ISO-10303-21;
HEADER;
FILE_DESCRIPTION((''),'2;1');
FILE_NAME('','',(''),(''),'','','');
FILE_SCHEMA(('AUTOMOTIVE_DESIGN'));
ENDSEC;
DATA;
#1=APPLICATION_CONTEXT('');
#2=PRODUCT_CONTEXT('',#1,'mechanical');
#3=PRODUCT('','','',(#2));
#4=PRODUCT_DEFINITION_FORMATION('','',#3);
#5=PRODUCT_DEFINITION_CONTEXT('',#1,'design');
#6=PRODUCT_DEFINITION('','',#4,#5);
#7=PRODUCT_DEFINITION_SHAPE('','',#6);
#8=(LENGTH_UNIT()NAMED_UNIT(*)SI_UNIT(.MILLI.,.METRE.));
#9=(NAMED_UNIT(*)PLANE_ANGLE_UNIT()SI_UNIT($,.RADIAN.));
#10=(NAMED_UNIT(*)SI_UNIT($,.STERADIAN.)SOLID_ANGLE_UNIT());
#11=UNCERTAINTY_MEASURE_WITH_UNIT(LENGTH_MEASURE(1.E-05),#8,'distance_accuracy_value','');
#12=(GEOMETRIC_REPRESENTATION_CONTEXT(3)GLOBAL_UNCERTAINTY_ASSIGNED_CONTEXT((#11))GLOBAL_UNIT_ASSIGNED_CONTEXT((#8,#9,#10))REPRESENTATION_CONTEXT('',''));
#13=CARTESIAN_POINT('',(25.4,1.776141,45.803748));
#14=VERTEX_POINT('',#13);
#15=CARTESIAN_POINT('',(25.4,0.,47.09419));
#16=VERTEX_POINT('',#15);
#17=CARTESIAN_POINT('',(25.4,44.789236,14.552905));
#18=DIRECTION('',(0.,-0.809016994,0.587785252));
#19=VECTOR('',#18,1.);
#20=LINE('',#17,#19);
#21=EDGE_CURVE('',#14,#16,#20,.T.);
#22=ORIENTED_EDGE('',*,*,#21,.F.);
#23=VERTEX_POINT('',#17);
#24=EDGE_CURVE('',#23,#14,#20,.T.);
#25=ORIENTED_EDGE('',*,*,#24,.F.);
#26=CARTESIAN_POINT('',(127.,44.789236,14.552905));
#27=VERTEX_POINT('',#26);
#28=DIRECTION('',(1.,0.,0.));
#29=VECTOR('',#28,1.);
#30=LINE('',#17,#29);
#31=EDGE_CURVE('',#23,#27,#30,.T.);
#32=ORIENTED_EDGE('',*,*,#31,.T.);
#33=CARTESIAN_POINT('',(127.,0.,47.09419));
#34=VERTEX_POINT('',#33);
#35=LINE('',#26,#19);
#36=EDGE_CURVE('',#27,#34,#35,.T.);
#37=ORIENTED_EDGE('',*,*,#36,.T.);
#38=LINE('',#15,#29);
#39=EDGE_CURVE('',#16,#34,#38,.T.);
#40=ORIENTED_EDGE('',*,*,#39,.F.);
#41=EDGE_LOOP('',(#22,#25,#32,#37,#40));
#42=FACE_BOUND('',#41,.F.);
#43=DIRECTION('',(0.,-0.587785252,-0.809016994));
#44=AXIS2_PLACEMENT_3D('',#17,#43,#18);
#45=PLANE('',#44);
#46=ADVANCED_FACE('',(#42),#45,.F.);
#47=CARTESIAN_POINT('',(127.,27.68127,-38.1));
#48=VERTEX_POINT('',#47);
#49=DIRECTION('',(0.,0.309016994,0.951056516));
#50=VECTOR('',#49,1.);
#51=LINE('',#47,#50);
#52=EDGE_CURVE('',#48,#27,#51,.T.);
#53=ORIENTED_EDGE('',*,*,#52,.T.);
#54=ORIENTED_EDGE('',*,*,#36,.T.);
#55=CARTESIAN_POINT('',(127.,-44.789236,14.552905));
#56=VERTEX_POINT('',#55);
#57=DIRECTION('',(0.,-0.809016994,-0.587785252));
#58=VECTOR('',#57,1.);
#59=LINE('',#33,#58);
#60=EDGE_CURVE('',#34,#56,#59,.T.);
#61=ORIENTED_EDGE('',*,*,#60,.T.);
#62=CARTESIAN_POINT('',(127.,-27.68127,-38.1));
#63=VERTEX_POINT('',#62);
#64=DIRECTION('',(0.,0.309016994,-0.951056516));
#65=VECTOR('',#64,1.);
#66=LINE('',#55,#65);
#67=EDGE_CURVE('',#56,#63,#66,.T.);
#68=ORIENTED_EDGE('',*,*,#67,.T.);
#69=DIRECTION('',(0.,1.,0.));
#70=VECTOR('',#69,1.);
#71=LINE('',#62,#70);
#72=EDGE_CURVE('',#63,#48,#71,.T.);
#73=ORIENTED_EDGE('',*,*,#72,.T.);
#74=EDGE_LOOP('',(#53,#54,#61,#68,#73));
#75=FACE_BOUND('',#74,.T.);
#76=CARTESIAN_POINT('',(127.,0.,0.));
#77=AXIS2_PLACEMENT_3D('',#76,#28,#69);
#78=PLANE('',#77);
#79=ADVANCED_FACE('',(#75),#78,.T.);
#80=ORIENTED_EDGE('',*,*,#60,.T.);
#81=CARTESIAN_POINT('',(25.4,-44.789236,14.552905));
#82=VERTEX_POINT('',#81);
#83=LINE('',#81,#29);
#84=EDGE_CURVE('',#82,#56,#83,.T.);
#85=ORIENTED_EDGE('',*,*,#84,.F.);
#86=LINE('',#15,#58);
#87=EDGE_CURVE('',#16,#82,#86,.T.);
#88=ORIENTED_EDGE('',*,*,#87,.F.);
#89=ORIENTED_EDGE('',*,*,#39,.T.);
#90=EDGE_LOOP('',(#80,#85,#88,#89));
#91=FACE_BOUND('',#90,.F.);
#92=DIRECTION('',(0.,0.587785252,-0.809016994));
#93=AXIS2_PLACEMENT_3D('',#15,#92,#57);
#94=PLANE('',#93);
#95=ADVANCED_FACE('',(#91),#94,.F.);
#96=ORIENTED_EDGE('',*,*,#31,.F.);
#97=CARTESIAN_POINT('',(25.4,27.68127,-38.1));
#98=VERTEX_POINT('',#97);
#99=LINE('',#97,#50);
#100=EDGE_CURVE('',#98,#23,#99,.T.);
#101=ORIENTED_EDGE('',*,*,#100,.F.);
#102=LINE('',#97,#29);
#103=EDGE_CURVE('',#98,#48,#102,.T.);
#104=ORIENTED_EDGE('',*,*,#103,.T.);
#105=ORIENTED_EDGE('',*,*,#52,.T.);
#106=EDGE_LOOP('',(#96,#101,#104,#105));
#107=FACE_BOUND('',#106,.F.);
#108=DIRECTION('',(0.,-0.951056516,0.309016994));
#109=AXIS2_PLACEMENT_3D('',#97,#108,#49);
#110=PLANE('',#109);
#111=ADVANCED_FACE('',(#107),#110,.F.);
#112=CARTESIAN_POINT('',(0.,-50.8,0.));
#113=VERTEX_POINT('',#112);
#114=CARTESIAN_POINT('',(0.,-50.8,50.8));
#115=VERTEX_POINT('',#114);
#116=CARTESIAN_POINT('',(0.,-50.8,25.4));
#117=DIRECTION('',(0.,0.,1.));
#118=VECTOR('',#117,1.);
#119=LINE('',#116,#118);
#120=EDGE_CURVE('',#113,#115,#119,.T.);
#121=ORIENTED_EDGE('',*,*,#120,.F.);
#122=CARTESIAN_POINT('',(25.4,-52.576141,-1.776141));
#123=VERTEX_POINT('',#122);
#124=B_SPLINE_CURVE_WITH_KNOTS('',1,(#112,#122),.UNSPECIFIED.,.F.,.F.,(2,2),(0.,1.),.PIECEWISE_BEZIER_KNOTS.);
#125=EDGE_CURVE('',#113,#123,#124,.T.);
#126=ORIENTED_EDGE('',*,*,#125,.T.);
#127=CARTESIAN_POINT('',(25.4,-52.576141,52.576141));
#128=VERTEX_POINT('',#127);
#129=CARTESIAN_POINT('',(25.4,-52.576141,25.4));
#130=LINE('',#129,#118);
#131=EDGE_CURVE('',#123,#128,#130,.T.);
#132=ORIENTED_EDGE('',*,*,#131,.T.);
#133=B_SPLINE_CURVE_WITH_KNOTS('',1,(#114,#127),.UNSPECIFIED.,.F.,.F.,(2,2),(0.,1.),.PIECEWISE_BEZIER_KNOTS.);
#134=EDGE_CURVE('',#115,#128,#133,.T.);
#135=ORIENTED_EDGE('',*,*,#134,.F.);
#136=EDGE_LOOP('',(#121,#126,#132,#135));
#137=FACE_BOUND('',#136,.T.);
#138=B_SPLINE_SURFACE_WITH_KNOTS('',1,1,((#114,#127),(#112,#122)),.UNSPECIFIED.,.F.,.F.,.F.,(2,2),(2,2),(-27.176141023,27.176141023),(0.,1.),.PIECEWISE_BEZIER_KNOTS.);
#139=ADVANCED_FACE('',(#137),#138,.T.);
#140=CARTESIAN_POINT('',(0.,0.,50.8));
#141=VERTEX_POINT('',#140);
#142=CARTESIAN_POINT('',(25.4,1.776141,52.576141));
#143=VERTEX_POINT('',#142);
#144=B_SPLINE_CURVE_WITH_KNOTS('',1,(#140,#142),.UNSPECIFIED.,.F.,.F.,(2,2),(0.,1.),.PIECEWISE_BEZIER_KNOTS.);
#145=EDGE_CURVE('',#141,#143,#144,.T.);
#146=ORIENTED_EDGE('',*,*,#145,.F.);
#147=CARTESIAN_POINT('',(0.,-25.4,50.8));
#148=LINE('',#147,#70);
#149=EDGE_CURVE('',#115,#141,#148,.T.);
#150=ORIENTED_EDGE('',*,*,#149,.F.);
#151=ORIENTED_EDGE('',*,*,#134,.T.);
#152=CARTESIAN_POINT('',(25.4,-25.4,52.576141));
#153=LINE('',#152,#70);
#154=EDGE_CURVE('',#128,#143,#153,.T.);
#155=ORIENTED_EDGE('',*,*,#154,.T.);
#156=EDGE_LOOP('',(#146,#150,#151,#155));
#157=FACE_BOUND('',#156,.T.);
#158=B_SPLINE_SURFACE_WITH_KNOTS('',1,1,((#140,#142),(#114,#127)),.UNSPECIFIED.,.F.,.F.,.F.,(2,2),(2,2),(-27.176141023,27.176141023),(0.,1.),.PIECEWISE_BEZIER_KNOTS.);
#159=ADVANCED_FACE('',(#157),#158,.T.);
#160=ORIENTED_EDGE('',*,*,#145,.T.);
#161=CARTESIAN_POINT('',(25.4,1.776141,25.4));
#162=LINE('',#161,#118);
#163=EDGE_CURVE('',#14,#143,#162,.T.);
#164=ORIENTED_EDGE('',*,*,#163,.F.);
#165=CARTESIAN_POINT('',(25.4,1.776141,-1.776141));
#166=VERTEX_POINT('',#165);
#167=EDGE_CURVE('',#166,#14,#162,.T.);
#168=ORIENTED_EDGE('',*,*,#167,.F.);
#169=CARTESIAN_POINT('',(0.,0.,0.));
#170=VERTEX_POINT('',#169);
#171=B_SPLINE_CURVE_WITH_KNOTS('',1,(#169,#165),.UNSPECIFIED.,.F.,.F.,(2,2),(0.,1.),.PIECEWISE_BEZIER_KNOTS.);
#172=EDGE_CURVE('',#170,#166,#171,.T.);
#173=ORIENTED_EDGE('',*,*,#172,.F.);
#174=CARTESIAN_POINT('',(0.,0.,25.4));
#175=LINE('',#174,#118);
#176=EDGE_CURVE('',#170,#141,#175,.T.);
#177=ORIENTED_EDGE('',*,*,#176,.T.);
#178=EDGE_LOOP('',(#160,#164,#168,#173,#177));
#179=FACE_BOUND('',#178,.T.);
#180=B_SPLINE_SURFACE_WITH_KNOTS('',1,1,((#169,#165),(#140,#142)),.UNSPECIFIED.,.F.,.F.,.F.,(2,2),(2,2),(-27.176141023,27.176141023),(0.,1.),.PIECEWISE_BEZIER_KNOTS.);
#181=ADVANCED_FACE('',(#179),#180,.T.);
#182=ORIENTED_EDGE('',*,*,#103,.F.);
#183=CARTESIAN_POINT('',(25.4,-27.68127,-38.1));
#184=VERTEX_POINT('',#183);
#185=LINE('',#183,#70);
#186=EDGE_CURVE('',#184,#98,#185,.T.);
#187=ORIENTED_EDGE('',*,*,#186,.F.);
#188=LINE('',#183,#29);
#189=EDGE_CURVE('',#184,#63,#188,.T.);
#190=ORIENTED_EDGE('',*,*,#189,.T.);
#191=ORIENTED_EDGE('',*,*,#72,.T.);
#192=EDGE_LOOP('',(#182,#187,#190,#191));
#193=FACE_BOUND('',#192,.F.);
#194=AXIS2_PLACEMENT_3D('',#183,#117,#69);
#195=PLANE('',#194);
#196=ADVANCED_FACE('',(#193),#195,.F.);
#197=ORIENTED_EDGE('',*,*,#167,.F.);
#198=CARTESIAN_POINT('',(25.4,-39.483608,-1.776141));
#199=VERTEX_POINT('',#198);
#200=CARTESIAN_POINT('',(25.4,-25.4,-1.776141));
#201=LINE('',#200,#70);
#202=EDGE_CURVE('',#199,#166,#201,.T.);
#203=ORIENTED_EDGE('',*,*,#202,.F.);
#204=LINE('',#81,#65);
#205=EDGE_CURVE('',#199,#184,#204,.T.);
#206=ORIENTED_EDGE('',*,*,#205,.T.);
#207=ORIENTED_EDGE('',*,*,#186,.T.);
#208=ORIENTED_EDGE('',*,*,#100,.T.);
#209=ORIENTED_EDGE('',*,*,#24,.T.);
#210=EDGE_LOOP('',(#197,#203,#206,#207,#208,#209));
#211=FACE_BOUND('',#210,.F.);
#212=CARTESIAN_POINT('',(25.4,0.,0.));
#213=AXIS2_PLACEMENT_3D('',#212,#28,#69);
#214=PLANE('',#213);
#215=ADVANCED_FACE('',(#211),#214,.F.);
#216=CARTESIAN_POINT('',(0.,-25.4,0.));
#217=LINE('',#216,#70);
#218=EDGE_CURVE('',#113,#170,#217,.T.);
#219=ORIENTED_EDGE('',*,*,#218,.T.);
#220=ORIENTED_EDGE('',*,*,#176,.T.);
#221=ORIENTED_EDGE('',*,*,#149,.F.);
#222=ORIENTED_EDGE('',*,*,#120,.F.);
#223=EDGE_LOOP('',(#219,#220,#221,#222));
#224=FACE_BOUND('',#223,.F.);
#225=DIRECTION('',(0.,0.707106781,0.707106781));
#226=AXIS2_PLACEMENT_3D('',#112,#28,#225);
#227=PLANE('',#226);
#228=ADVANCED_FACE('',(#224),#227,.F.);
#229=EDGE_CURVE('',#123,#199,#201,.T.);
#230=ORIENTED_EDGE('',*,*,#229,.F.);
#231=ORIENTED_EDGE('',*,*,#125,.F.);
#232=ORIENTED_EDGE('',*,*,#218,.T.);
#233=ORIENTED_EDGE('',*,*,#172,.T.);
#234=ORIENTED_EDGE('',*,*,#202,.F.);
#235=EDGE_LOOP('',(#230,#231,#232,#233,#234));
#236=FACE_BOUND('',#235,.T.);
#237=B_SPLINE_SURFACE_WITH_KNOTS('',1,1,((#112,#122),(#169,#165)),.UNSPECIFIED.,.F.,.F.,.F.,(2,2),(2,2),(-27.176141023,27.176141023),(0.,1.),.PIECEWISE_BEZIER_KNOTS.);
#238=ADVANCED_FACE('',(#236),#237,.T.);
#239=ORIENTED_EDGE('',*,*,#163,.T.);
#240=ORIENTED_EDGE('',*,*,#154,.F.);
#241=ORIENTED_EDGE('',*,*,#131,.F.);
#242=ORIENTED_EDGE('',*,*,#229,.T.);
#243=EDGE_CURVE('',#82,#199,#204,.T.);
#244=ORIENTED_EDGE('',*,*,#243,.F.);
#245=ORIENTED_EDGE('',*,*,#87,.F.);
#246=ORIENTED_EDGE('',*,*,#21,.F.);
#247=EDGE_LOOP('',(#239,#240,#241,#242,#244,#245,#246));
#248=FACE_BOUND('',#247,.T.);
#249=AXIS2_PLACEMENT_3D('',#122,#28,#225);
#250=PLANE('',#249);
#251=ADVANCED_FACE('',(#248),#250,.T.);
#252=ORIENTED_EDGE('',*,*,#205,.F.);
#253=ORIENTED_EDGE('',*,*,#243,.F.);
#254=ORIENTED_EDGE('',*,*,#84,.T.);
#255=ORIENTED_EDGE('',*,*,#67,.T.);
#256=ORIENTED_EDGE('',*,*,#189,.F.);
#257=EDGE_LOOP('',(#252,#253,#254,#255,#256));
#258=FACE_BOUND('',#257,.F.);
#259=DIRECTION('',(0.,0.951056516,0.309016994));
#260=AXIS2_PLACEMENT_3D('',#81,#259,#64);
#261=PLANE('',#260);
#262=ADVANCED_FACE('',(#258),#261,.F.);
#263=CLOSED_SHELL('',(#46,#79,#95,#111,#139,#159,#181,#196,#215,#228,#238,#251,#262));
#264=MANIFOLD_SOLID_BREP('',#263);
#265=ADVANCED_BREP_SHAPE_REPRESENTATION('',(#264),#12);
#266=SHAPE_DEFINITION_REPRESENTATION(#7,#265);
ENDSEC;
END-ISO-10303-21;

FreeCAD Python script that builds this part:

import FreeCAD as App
import Part
import Sketcher
Q = App.Units.Quantity

doc = App.newDocument("Part")
body = doc.addObject("PartDesign::Body", "Body")

sketch1 = body.newObject("Sketcher::SketchObject", "Sketch")
sketch1.AttachmentSupport = (doc.getObject("YZ_Plane"), [""])
sketch1.MapMode = "FlatFace"
sketch1.addGeometry([
    Part.LineSegment(App.Vector(-51, 51, 0), App.Vector(-51, 0, 0)),
    Part.LineSegment(App.Vector(-51, 0, 0), App.Vector(0, 0, 0)),
    Part.LineSegment(App.Vector(0, 0, 0), App.Vector(0, 51, 0)),
    Part.LineSegment(App.Vector(0, 51, 0), App.Vector(-51, 51, 0)),
], False)
sketch1.addConstraint([
    Sketcher.Constraint("Coincident", 0, 2, 1, 1),
    Sketcher.Constraint("Coincident", 1, 2, 2, 1),
    Sketcher.Constraint("Coincident", 2, 2, 3, 1),
    Sketcher.Constraint("Coincident", 3, 2, 0, 1),
    Sketcher.Constraint("Vertical", 0),
    Sketcher.Constraint("Horizontal", 1),
    Sketcher.Constraint("Vertical", 2),
    Sketcher.Constraint("Horizontal", 3),
    Sketcher.Constraint("Coincident", 1, 2, -1, 1),
    Sketcher.Constraint("Equal", 3, 0),
    Sketcher.Constraint("DistanceX", 1, 1, 1, 2, Q("2 in")),
])
pad1 = body.newObject("PartDesign::Pad", "Pad")
pad1.Profile = sketch1
pad1.Length = Q("1 in")
pad1.TaperAngle = 4

sketch2 = body.newObject("Sketcher::SketchObject", "Sketch001")
sketch2.AttachmentSupport = (doc.getObject("YZ_Plane"), [""])
sketch2.MapMode = "FlatFace"
sketch2.AttachmentOffset = App.Placement(App.Vector(0, 0, 1 * 25.4), App.Rotation())
sketch2.addGeometry([
    Part.LineSegment(App.Vector(-28, -38, 0), App.Vector(28, -38, 0)),
    Part.LineSegment(App.Vector(28, -38, 0), App.Vector(45, 15, 0)),
    Part.LineSegment(App.Vector(45, 15, 0), App.Vector(0, 47, 0)),
    Part.LineSegment(App.Vector(0, 47, 0), App.Vector(-45, 15, 0)),
    Part.LineSegment(App.Vector(-45, 15, 0), App.Vector(-28, -38, 0)),
], False)
sketch2.addConstraint([
    Sketcher.Constraint("Coincident", 0, 2, 1, 1),
    Sketcher.Constraint("Coincident", 1, 2, 2, 1),
    Sketcher.Constraint("Coincident", 2, 2, 3, 1),
    Sketcher.Constraint("Coincident", 3, 2, 4, 1),
    Sketcher.Constraint("Coincident", 4, 2, 0, 1),
    Sketcher.Constraint("Horizontal", 0),
    Sketcher.Constraint("Symmetric", 1, 2, 3, 2, -2),
    Sketcher.Constraint("PointOnObject", 2, 2, -2),
    Sketcher.Constraint("Equal", 1, 2),
    Sketcher.Constraint("Equal", 3, 4),
    Sketcher.Constraint("Angle", 1, Q("72 deg")),
    Sketcher.Constraint("Angle", 2, Q("144 deg")),
    Sketcher.Constraint("DistanceY", 0, 2, -1, 1, Q("1.5 in")),
    Sketcher.Constraint("DistanceX", 0, 1, 0, 2, 55.362541),
])
pad2 = body.newObject("PartDesign::Pad", "Pad001")
pad2.Profile = sketch2
pad2.Length = Q("4 in")

doc.recompute()
